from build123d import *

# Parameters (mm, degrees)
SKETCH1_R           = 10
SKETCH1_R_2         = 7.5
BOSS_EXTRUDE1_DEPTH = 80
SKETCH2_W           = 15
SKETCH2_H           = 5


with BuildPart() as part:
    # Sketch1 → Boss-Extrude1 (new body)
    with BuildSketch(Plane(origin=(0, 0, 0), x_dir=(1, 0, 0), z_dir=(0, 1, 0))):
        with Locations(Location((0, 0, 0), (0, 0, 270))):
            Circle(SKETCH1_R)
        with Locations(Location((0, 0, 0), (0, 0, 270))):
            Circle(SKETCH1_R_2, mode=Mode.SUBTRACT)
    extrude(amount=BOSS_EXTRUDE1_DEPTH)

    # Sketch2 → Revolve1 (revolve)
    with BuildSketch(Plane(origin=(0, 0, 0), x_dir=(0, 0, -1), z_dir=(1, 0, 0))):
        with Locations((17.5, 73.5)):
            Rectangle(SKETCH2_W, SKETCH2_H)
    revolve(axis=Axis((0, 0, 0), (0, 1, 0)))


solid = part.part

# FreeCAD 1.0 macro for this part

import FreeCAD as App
import Part
import Sketcher
from FreeCAD import Vector
Q = App.Units.Quantity


def add_polygon(sketch, points):
    """Adds a closed chain of lines whose ends are joined by coincident constraints."""
    first, n = sketch.GeometryCount, len(points)
    for a, b in zip(points, points[1:] + points[:1]):
        sketch.addGeometry(Part.LineSegment(App.Vector(*a, 0), App.Vector(*b, 0)), False)
    for i in range(n):
        sketch.addConstraint(Sketcher.Constraint("Coincident", first + i, 2, first + (i + 1) % n, 1))

doc = App.newDocument("Part")
body = doc.addObject("PartDesign::Body", "Body")

sketch1 = body.newObject("Sketcher::SketchObject", "Sketch")
sketch1.AttachmentSupport = (doc.getObject("XZ_Plane"), [""])
sketch1.MapMode = "FlatFace"
sketch1.addGeometry([
    Part.Circle(Vector(0, 0, 0), Vector(0, 0, 1), 10),
    Part.Circle(Vector(0, 0, 0), Vector(0, 0, 1), 7.5),
], False)
sketch1.addConstraint([
    Sketcher.Constraint("Coincident", 0, 3, -1, 1),
    Sketcher.Constraint("Coincident", 1, 3, -1, 1),
    Sketcher.Constraint("Diameter", 0, Q("20 mm")),
    Sketcher.Constraint("Diameter", 1, Q("15 mm")),
])
pad1 = body.newObject("PartDesign::Pad", "Pad")
pad1.Profile = sketch1
pad1.Length = 80
pad1.Reversed = True

sketch2 = body.newObject("Sketcher::SketchObject", "Sketch001")
sketch2.AttachmentSupport = (doc.getObject("YZ_Plane"), [""])
sketch2.MapMode = "FlatFace"
add_polygon(sketch2, [(76, -10), (71, -10), (71, -25), (76, -25)])
sketch2.addConstraint([
    Sketcher.Constraint("Horizontal", 0),
    Sketcher.Constraint("Vertical", 1),
    Sketcher.Constraint("Horizontal", 2),
    Sketcher.Constraint("Vertical", 3),
    Sketcher.Constraint("DistanceX", 0, 2, 0, 1, Q("5 mm")),
    Sketcher.Constraint("DistanceY", 1, 2, 1, 1, Q("15 mm")),
    Sketcher.Constraint("DistanceX", -1, 1, 0, 2, Q("71 mm")),
    Sketcher.Constraint("DistanceY", 0, 2, -1, 1, Q("10 mm")),
])
revolution = body.newObject("PartDesign::Revolution", "Revolution")
revolution.Profile = sketch2
revolution.ReferenceAxis = (sketch2, ["H_Axis"])
revolution.Angle = 360

doc.recompute()
